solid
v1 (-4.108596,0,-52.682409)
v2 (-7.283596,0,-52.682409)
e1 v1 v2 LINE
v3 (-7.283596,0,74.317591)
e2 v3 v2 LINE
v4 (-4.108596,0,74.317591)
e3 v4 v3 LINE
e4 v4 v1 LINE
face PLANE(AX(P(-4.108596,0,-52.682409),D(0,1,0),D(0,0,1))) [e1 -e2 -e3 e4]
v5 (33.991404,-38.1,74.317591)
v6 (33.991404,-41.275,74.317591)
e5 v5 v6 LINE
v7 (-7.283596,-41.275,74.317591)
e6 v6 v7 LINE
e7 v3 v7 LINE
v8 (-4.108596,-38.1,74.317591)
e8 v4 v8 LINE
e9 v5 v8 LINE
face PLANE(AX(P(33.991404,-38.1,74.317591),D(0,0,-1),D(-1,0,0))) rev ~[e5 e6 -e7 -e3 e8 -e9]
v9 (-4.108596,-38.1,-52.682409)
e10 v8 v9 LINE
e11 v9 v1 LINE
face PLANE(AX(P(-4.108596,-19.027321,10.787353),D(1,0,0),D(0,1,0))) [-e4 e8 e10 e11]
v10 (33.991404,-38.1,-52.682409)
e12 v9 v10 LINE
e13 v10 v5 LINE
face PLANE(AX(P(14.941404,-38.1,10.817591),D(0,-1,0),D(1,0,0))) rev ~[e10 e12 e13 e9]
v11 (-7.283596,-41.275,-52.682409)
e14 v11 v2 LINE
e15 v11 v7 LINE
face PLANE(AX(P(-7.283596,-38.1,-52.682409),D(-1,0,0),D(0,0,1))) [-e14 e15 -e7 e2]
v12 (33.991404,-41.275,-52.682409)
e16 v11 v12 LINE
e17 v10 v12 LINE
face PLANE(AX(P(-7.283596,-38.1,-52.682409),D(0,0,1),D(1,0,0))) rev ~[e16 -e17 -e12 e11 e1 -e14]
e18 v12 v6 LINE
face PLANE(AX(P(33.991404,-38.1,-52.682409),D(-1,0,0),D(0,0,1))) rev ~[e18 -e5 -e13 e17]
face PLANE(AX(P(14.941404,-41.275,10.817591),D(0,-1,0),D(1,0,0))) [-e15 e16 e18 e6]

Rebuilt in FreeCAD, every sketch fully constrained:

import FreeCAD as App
import Part
import Sketcher
from FreeCAD import Vector
Q = App.Units.Quantity

doc = App.newDocument("Part")
body = doc.addObject("PartDesign::Body", "Body")

# Sketch on XZ plane
sketch1 = doc.addObject("Sketcher::SketchObject", "Sketch")
body.addObject(sketch1)
sketch1.AttachmentSupport = (doc.XZ_Plane, [""])
sketch1.MapMode = "FlatFace"
sketch1.addGeometry(Part.LineSegment(Vector(-33, 24, 0), Vector(-33, -8, 0)), False)
sketch1.addGeometry(Part.LineSegment(Vector(-33, -8, 0), Vector(-4, -8, 0)), False)
sketch1.addGeometry(Part.LineSegment(Vector(-4, -8, 0), Vector(-4, 24, 0)), False)
sketch1.addGeometry(Part.LineSegment(Vector(-4, 24, 0), Vector(-33, 24, 0)), False)
sketch1.addConstraint(Sketcher.Constraint("Coincident", 0, 2, 1, 1))
sketch1.addConstraint(Sketcher.Constraint("Coincident", 1, 2, 2, 1))
sketch1.addConstraint(Sketcher.Constraint("Coincident", 2, 2, 3, 1))
sketch1.addConstraint(Sketcher.Constraint("Coincident", 3, 2, 0, 1))
sketch1.addConstraint(Sketcher.Constraint("Vertical", 0))
sketch1.addConstraint(Sketcher.Constraint("Horizontal", 1))
sketch1.addConstraint(Sketcher.Constraint("Vertical", 2))
sketch1.addConstraint(Sketcher.Constraint("Horizontal", 3))
sketch1.addConstraint(Sketcher.Constraint("DistanceY", 0, 2, 0, 1, Q("1.25 in")))
sketch1.addConstraint(Sketcher.Constraint("DistanceX", 1, 1, 1, 2, Q("1.125 in")))
sketch1.addConstraint(Sketcher.Constraint("DistanceY", 0, 2, -1, 1, 8.232409))
sketch1.addConstraint(Sketcher.Constraint("DistanceX", 0, 2, -1, 1, 32.683596))
pad1 = doc.addObject("PartDesign::Pad", "Pad")
body.addObject(pad1)
pad1.Profile = sketch1
pad1.Length = Q("0.0625 in")

# Sketch on YZ plane
sketch2 = doc.addObject("Sketcher::SketchObject", "Sketch001")
body.addObject(sketch2)
sketch2.AttachmentSupport = (doc.YZ_Plane, [""])
sketch2.MapMode = "FlatFace"
sketch2.AttachmentOffset = App.Placement(Vector(0, 0, -4.108596), App.Rotation())
sketch2.addGeometry(Part.LineSegment(Vector(-38.1, -52.7, 0), Vector(0, -52.7, 0)), False)
sketch2.addGeometry(Part.LineSegment(Vector(0, -52.7, 0), Vector(0, -8.2, 0)), False)
sketch2.addGeometry(Part.LineSegment(Vector(0, -8.2, 0), Vector(-1.6, -8.2, 0)), False)
sketch2.addGeometry(Part.LineSegment(Vector(-1.6, -8.2, 0), Vector(-1.6, 23.5, 0)), False)
sketch2.addGeometry(Part.LineSegment(Vector(-1.6, 23.5, 0), Vector(0, 23.5, 0)), False)
sketch2.addGeometry(Part.LineSegment(Vector(0, 23.5, 0), Vector(0, 74.3, 0)), False)
sketch2.addGeometry(Part.LineSegment(Vector(0, 74.3, 0), Vector(-38.1, 74.3, 0)), False)
sketch2.addGeometry(Part.LineSegment(Vector(-38.1, 74.3, 0), Vector(-38.1, -52.7, 0)), False)
sketch2.addConstraint(Sketcher.Constraint("Coincident", 0, 2, 1, 1))
sketch2.addConstraint(Sketcher.Constraint("Coincident", 1, 2, 2, 1))
sketch2.addConstraint(Sketcher.Constraint("Coincident", 2, 2, 3, 1))
sketch2.addConstraint(Sketcher.Constraint("Coincident", 3, 2, 4, 1))
sketch2.addConstraint(Sketcher.Constraint("Coincident", 4, 2, 5, 1))
sketch2.addConstraint(Sketcher.Constraint("Coincident", 5, 2, 6, 1))
sketch2.addConstraint(Sketcher.Constraint("Coincident", 6, 2, 7, 1))
sketch2.addConstraint(Sketcher.Constraint("Coincident", 7, 2, 0, 1))
sketch2.addConstraint(Sketcher.Constraint("Horizontal", 0))
sketch2.addConstraint(Sketcher.Constraint("Vertical", 1))
sketch2.addConstraint(Sketcher.Constraint("Horizontal", 2))
sketch2.addConstraint(Sketcher.Constraint("Vertical", 3))
sketch2.addConstraint(Sketcher.Constraint("Horizontal", 4))
sketch2.addConstraint(Sketcher.Constraint("Vertical", 5))
sketch2.addConstraint(Sketcher.Constraint("Horizontal", 6))
sketch2.addConstraint(Sketcher.Constraint("Vertical", 7))
sketch2.addConstraint(Sketcher.Constraint("PointOnObject", 0, 2, -2))
sketch2.addConstraint(Sketcher.Constraint("PointOnObject", 4, 2, -2))
sketch2.addConstraint(Sketcher.Constraint("DistanceY", 5, 1, 5, 2, Q("2 in")))
sketch2.addConstraint(Sketcher.Constraint("DistanceY", 7, 2, 7, 1, Q("5 in")))
sketch2.addConstraint(Sketcher.Constraint("DistanceX", 0, 1, 0, 2, Q("1.5 in")))
sketch2.addConstraint(Sketcher.Constraint("DistanceY", 1, 1, 1, 2, Q("1.75 in")))
sketch2.addConstraint(Sketcher.Constraint("DistanceX", 2, 2, 2, 1, Q("0.0625 in")))
sketch2.addConstraint(Sketcher.Constraint("DistanceY", 0, 2, -1, 1, 52.682409))
pad2 = doc.addObject("PartDesign::Pad", "Pad001")
body.addObject(pad2)
pad2.Profile = sketch2
pad2.Length = Q("0.125 in")
pad2.Reversed = True

# Sketch on XZ plane
sketch3 = doc.addObject("Sketcher::SketchObject", "Sketch002")
body.addObject(sketch3)
sketch3.AttachmentSupport = (doc.XZ_Plane, [""])
sketch3.MapMode = "FlatFace"
sketch3.AttachmentOffset = App.Placement(Vector(0, 0, 1.5 * 25.4), App.Rotation())
sketch3.addGeometry(Part.LineSegment(Vector(34, -53, 0), Vector(34, 74, 0)), False)
sketch3.addGeometry(Part.LineSegment(Vector(34, 74, 0), Vector(-7, 74, 0)), False)
sketch3.addGeometry(Part.LineSegment(Vector(-7, 74, 0), Vector(-7, -53, 0)), False)
sketch3.addGeometry(Part.LineSegment(Vector(-7, -53, 0), Vector(34, -53, 0)), False)
sketch3.addConstraint(Sketcher.Constraint("Coincident", 0, 2, 1, 1))
sketch3.addConstraint(Sketcher.Constraint("Coincident", 1, 2, 2, 1))
sketch3.addConstraint(Sketcher.Constraint("Coincident", 2, 2, 3, 1))
sketch3.addConstraint(Sketcher.Constraint("Coincident", 3, 2, 0, 1))
sketch3.addConstraint(Sketcher.Constraint("Vertical", 0))
sketch3.addConstraint(Sketcher.Constraint("Horizontal", 1))
sketch3.addConstraint(Sketcher.Constraint("Vertical", 2))
sketch3.addConstraint(Sketcher.Constraint("Horizontal", 3))
sketch3.addConstraint(Sketcher.Constraint("DistanceY", 0, 1, 0, 2, Q("5 in")))
sketch3.addConstraint(Sketcher.Constraint("DistanceX", 1, 2, 1, 1, Q("1.625 in")))
sketch3.addConstraint(Sketcher.Constraint("DistanceY", -1, 1, 0, 2, 74.317591))
sketch3.addConstraint(Sketcher.Constraint("DistanceX", -1, 1, 0, 2, 33.991404))
pad3 = doc.addObject("PartDesign::Pad", "Pad002")
body.addObject(pad3)
pad3.Profile = sketch3
pad3.Length = Q("0.125 in")

# Sketch on XZ plane
sketch4 = doc.addObject("Sketcher::SketchObject", "Sketch003")
body.addObject(sketch4)
sketch4.AttachmentSupport = (doc.XZ_Plane, [""])
sketch4.MapMode = "FlatFace"
sketch4.AttachmentOffset = App.Placement(Vector(0, 0, 0.0625 * 25.4), App.Rotation())
sketch4.addGeometry(Part.Circle(Vector(-16.7, 7.6, 0), Vector(0, 0, 1), 4), False)
sketch4.addGeometry(Part.Circle(Vector(-22.3, 13.3, 0), Vector(0, 0, 1), 1.9), False)
sketch4.addGeometry(Part.Circle(Vector(-16.7, 15.6, 0), Vector(0, 0, 1), 1.9), False)
sketch4.addGeometry(Part.Circle(Vector(-11, 13.3, 0), Vector(0, 0, 1), 1.9), False)
sketch4.addGeometry(Part.Circle(Vector(-11, 2, 0), Vector(0, 0, 1), 1.9), False)
sketch4.addGeometry(Part.Circle(Vector(-16.7, -0.4, 0), Vector(0, 0, 1), 1.9), False)
sketch4.addGeometry(Part.Circle(Vector(-22.3, 2, 0), Vector(0, 0, 1), 1.9), False)
sketch4.addGeometry(Part.Circle(Vector(-24.7, 7.6, 0), Vector(0, 0, 1), 1.9), False)
sketch4.addConstraint(Sketcher.Constraint("Equal", 1, 2))
sketch4.addConstraint(Sketcher.Constraint("Equal", 2, 3))
sketch4.addConstraint(Sketcher.Constraint("Equal", 3, 4))
sketch4.addConstraint(Sketcher.Constraint("Equal", 4, 5))
sketch4.addConstraint(Sketcher.Constraint("Equal", 5, 6))
sketch4.addConstraint(Sketcher.Constraint("Equal", 6, 7))
sketch4.addConstraint(Sketcher.Constraint("Horizontal", 1, 3, 3, 3))
sketch4.addConstraint(Sketcher.Constraint("Horizontal", 4, 3, 6, 3))
sketch4.addConstraint(Sketcher.Constraint("Horizontal", 0, 3, 7, 3))
sketch4.addConstraint(Sketcher.Constraint("Vertical", 0, 3, 2, 3))
sketch4.addConstraint(Sketcher.Constraint("Vertical", 3, 3, 4, 3))
sketch4.addConstraint(Sketcher.Constraint("Vertical", 2, 3, 5, 3))
sketch4.addConstraint(Sketcher.Constraint("Vertical", 1, 3, 6, 3))
sketch4.addConstraint(Sketcher.Constraint("Diameter", 0, 8.0))
sketch4.addConstraint(Sketcher.Constraint("Diameter", 1, 3.7))
sketch4.addConstraint(Sketcher.Constraint("DistanceY", 0, 3, 2, 3, 8.0))
sketch4.addConstraint(Sketcher.Constraint("DistanceY", 5, 3, 0, 3, 8.0))
sketch4.addConstraint(Sketcher.Constraint("DistanceX", 7, 3, 0, 3, 8.0))
sketch4.addConstraint(Sketcher.Constraint("DistanceY", -1, 1, 0, 3, 7.642591))
sketch4.addConstraint(Sketcher.Constraint("DistanceX", 1, 3, -1, 1, 22.34045))
sketch4.addConstraint(Sketcher.Constraint("DistanceX", 3, 3, -1, 1, 11.026742))
sketch4.addConstraint(Sketcher.Constraint("DistanceY", 4, 3, 3, 3, 11.313708))
sketch4.addConstraint(Sketcher.Constraint("DistanceX", 0, 3, -1, 1, 16.683596))
sketch4.addConstraint(Sketcher.Constraint("DistanceY", -1, 1, 1, 3, 13.299445))
pocket1 = doc.addObject("PartDesign::Pocket", "Pocket")
body.addObject(pocket1)
pocket1.Profile = sketch4
pocket1.Length = Q("1 in")

# Sketch on YZ plane
sketch5 = doc.addObject("Sketcher::SketchObject", "Sketch004")
body.addObject(sketch5)
sketch5.AttachmentSupport = (doc.YZ_Plane, [""])
sketch5.MapMode = "FlatFace"
sketch5.AttachmentOffset = App.Placement(Vector(0, 0, -32.683596), App.Rotation())
sketch5.addGeometry(Part.LineSegment(Vector(0, 23.5, 0), Vector(0, -8.2, 0)), False)
sketch5.addGeometry(Part.LineSegment(Vector(0, -8.2, 0), Vector(-1.6, -8.2, 0)), False)
sketch5.addGeometry(Part.LineSegment(Vector(-1.6, -8.2, 0), Vector(-1.6, 23.5, 0)), False)
sketch5.addGeometry(Part.LineSegment(Vector(-1.6, 23.5, 0), Vector(0, 23.5, 0)), False)
sketch5.addConstraint(Sketcher.Constraint("Coincident", 0, 2, 1, 1))
sketch5.addConstraint(Sketcher.Constraint("Coincident", 1, 2, 2, 1))
sketch5.addConstraint(Sketcher.Constraint("Coincident", 2, 2, 3, 1))
sketch5.addConstraint(Sketcher.Constraint("Coincident", 3, 2, 0, 1))
sketch5.addConstraint(Sketcher.Constraint("Vertical", 0))
sketch5.addConstraint(Sketcher.Constraint("Horizontal", 1))
sketch5.addConstraint(Sketcher.Constraint("Vertical", 2))
sketch5.addConstraint(Sketcher.Constraint("Horizontal", 3))
sketch5.addConstraint(Sketcher.Constraint("PointOnObject", 0, 2, -2))
sketch5.addConstraint(Sketcher.Constraint("DistanceY", 0, 2, 0, 1, Q("1.25 in")))
sketch5.addConstraint(Sketcher.Constraint("DistanceX", 1, 2, 1, 1, Q("0.0625 in")))
sketch5.addConstraint(Sketcher.Constraint("DistanceY", 0, 2, -1, 1, 8.232409))
pocket2 = doc.addObject("PartDesign::Pocket", "Pocket001")
body.addObject(pocket2)
pocket2.Profile = sketch5
pocket2.Length = Q("1 in")
pocket2.Reversed = True

doc.recompute()
